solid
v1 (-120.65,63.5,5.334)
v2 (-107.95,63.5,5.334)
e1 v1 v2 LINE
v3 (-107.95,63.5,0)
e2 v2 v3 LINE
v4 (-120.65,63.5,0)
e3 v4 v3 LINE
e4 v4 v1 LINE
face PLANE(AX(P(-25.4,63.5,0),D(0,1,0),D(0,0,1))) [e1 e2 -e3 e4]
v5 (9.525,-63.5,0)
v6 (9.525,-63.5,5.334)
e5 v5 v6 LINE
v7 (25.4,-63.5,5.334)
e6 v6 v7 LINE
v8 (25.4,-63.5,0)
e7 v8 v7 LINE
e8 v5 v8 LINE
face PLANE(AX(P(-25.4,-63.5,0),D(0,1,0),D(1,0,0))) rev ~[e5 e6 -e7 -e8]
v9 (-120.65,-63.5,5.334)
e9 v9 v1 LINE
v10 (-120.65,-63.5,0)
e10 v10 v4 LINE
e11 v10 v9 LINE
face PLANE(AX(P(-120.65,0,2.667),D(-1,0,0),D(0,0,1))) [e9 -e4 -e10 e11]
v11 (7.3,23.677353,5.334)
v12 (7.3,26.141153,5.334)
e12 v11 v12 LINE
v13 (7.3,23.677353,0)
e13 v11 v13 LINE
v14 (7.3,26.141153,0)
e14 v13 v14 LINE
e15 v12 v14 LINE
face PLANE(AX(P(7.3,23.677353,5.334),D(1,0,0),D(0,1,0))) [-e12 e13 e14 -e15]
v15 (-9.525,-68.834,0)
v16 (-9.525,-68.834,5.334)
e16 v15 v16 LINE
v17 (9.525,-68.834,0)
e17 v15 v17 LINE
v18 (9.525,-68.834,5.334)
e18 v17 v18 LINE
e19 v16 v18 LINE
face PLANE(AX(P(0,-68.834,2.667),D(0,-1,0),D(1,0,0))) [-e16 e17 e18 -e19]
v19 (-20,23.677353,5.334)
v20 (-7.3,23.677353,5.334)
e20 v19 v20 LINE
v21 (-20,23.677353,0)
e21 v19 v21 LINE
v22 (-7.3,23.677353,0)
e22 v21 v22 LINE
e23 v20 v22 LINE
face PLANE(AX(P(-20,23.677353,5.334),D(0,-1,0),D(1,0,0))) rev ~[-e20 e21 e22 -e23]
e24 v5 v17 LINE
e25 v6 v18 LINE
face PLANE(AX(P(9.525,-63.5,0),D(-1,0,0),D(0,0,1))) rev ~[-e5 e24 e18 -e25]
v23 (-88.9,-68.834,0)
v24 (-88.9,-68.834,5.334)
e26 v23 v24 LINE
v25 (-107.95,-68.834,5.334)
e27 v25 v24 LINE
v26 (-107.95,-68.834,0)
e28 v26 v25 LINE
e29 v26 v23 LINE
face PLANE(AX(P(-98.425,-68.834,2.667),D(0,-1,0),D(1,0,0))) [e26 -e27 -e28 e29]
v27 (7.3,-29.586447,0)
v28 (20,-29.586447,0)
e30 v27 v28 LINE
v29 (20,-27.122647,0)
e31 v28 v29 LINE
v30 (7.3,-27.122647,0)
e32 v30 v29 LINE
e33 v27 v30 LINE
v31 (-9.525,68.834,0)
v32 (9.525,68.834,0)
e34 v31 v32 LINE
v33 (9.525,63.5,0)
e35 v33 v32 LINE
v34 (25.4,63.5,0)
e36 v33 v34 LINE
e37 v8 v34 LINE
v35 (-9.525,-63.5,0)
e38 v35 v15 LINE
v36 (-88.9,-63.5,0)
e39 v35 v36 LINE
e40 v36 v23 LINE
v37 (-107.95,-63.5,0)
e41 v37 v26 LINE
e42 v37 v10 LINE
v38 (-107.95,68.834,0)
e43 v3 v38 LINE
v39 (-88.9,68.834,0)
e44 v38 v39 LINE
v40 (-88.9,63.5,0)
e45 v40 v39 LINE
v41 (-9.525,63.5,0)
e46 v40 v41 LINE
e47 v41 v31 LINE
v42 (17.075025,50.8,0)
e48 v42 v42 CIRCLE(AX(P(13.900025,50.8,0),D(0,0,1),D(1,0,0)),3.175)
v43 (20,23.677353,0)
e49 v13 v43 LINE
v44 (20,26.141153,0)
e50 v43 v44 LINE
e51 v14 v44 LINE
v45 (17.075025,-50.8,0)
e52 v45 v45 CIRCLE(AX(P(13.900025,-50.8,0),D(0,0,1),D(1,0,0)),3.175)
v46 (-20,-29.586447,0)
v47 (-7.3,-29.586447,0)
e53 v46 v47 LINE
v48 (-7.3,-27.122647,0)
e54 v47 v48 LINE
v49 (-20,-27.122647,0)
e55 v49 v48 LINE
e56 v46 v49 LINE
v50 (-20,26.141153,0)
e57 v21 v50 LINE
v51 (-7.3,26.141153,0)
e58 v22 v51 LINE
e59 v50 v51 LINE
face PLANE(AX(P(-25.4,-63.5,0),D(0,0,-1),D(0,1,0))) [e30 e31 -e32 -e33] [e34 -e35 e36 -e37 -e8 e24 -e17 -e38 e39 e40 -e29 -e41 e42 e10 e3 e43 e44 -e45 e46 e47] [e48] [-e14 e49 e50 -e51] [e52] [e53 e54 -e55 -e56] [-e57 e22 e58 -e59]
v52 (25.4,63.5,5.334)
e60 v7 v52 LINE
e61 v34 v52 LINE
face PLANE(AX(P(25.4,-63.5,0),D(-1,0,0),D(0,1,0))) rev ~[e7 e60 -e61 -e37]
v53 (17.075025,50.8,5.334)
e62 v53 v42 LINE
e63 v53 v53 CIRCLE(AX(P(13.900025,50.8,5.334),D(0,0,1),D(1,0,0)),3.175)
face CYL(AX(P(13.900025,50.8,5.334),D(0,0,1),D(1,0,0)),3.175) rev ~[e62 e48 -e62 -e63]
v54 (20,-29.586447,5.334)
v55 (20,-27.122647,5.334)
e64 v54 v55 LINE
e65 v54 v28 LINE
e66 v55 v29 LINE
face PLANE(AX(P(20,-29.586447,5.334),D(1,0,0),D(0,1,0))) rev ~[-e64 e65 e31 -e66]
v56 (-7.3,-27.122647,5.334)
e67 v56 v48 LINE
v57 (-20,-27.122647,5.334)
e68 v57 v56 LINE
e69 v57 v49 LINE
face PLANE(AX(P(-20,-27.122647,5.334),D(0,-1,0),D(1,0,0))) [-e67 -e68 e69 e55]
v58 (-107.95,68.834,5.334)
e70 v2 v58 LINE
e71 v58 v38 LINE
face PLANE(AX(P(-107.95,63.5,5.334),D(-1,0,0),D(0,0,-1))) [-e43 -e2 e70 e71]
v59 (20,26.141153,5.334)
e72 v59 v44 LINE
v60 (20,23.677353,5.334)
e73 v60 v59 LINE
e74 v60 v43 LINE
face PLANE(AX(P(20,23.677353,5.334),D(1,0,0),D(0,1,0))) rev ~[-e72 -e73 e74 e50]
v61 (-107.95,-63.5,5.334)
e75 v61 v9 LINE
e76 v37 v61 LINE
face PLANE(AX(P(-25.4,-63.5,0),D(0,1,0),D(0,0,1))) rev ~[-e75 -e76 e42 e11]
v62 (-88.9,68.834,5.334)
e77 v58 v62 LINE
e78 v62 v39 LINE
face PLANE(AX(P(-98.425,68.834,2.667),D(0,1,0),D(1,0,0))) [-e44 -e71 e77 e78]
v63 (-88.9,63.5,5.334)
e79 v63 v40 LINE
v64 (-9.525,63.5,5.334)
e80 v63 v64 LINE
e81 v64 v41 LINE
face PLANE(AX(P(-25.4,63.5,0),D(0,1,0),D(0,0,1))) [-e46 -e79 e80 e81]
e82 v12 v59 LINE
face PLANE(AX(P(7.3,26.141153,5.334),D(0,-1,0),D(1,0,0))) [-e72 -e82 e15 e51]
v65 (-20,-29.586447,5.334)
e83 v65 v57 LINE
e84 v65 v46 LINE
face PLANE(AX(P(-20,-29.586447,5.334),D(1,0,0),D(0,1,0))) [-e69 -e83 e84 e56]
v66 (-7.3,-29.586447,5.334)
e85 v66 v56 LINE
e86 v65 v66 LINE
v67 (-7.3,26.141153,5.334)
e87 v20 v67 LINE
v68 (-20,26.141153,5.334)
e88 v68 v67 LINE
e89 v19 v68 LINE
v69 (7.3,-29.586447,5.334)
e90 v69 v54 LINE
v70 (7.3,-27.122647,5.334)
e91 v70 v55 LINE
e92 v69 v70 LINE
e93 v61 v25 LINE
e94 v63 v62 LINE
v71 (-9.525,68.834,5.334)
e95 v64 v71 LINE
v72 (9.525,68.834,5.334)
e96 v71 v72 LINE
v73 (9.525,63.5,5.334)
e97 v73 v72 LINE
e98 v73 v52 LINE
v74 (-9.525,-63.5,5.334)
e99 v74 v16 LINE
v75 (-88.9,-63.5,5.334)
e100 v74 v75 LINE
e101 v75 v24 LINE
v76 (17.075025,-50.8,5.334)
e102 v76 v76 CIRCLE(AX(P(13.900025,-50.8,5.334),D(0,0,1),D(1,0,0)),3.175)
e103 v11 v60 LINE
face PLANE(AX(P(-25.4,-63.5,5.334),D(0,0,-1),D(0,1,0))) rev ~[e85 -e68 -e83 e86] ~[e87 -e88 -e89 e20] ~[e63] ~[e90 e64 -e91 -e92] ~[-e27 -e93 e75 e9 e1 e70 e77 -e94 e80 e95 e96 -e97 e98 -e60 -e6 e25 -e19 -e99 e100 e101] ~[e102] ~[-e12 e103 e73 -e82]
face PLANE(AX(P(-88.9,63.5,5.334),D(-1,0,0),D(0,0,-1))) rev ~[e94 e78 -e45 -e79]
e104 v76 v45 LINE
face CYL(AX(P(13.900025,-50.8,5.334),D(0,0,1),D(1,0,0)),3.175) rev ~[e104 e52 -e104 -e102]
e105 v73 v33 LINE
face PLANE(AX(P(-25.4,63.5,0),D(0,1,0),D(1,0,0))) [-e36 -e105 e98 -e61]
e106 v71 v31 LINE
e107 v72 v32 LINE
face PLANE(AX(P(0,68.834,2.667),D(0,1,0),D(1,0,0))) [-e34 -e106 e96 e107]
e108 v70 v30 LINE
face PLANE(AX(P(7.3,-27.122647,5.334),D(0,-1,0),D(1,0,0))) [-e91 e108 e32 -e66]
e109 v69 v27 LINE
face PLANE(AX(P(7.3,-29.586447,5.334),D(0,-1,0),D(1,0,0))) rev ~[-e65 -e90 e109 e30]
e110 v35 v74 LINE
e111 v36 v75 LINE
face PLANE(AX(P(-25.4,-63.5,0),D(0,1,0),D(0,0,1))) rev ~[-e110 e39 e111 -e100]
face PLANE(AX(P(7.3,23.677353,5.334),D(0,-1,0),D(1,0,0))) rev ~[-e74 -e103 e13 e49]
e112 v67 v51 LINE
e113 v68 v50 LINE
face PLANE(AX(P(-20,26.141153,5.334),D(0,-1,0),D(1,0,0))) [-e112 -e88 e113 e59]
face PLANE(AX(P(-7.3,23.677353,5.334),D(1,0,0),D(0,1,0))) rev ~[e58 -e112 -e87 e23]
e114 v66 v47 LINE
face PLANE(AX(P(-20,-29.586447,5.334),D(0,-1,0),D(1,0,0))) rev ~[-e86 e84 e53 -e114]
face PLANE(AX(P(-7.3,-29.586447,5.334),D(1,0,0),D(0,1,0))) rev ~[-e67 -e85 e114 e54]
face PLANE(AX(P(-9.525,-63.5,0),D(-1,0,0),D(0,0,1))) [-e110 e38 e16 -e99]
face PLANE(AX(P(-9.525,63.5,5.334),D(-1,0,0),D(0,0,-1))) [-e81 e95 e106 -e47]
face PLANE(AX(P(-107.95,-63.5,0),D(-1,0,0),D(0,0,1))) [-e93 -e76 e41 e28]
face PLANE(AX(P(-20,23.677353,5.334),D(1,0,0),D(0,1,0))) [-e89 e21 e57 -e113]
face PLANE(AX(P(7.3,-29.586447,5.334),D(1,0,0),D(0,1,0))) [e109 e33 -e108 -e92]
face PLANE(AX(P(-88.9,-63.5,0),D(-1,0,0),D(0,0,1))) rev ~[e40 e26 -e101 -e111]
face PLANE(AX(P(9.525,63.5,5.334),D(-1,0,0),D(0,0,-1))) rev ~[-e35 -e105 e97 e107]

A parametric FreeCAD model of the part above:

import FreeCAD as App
import Part
import Sketcher
Q = App.Units.Quantity

doc = App.newDocument("Part")
body = doc.addObject("PartDesign::Body", "Body")

# Sketch on XY plane
sketch1 = body.newObject("Sketcher::SketchObject", "Sketch")
sketch1.AttachmentSupport = (doc.getObject("XY_Plane"), [""])
sketch1.MapMode = "FlatFace"
sketch1.addGeometry(Part.LineSegment(App.Vector(-25.4, 63.5, 0), App.Vector(-25.4, -63.5, 0)), False)
sketch1.addGeometry(Part.LineSegment(App.Vector(-25.4, -63.5, 0), App.Vector(25.4, -63.5, 0)), False)
sketch1.addGeometry(Part.LineSegment(App.Vector(25.4, -63.5, 0), App.Vector(25.4, 63.5, 0)), False)
sketch1.addGeometry(Part.LineSegment(App.Vector(25.4, 63.5, 0), App.Vector(-25.4, 63.5, 0)), False)
sketch1.addConstraint(Sketcher.Constraint("Coincident", 0, 2, 1, 1))
sketch1.addConstraint(Sketcher.Constraint("Coincident", 1, 2, 2, 1))
sketch1.addConstraint(Sketcher.Constraint("Coincident", 2, 2, 3, 1))
sketch1.addConstraint(Sketcher.Constraint("Coincident", 3, 2, 0, 1))
sketch1.addConstraint(Sketcher.Constraint("Vertical", 0))
sketch1.addConstraint(Sketcher.Constraint("Horizontal", 1))
sketch1.addConstraint(Sketcher.Constraint("Vertical", 2))
sketch1.addConstraint(Sketcher.Constraint("Horizontal", 3))
sketch1.addConstraint(Sketcher.Constraint("Symmetric", 0, 2, 2, 2, -1, 1))
sketch1.addConstraint(Sketcher.Constraint("DistanceX", 1, 1, 1, 2, Q("2 in")))
sketch1.addConstraint(Sketcher.Constraint("DistanceY", 0, 2, 0, 1, Q("5 in")))
pad1 = body.newObject("PartDesign::Pad", "Pad")
pad1.Profile = sketch1
pad1.Length = Q("0.21 in")

# Sketch on XZ plane
sketch2 = body.newObject("Sketcher::SketchObject", "Sketch001")
sketch2.AttachmentSupport = (doc.getObject("XZ_Plane"), [""])
sketch2.MapMode = "FlatFace"
sketch2.AttachmentOffset = App.Placement(App.Vector(0, 0, -2.5 * 25.4), App.Rotation())
sketch2.addGeometry(Part.LineSegment(App.Vector(-9.525, 0, 0), App.Vector(-9.525, 5.334, 0)), False)
sketch2.addGeometry(Part.LineSegment(App.Vector(-9.525, 5.334, 0), App.Vector(9.525, 5.334, 0)), False)
sketch2.addGeometry(Part.LineSegment(App.Vector(9.525, 5.334, 0), App.Vector(9.525, 0, 0)), False)
sketch2.addGeometry(Part.LineSegment(App.Vector(9.525, 0, 0), App.Vector(-9.525, 0, 0)), False)
sketch2.addConstraint(Sketcher.Constraint("Coincident", 0, 2, 1, 1))
sketch2.addConstraint(Sketcher.Constraint("Coincident", 1, 2, 2, 1))
sketch2.addConstraint(Sketcher.Constraint("Coincident", 2, 2, 3, 1))
sketch2.addConstraint(Sketcher.Constraint("Coincident", 3, 2, 0, 1))
sketch2.addConstraint(Sketcher.Constraint("Vertical", 0))
sketch2.addConstraint(Sketcher.Constraint("Horizontal", 1))
sketch2.addConstraint(Sketcher.Constraint("Vertical", 2))
sketch2.addConstraint(Sketcher.Constraint("Horizontal", 3))
sketch2.addConstraint(Sketcher.Constraint("Symmetric", 2, 2, 3, 2, -1, 1))
sketch2.addConstraint(Sketcher.Constraint("DistanceX", 1, 1, 1, 2, Q("0.75 in")))
sketch2.addConstraint(Sketcher.Constraint("DistanceY", 0, 1, 0, 2, Q("0.21 in")))
pad2 = body.newObject("PartDesign::Pad", "Pad001")
pad2.Profile = sketch2
pad2.Length = Q("0.21 in")
pad2.Reversed = True

# Sketch on XZ plane
sketch3 = body.newObject("Sketcher::SketchObject", "Sketch002")
sketch3.AttachmentSupport = (doc.getObject("XZ_Plane"), [""])
sketch3.MapMode = "FlatFace"
sketch3.AttachmentOffset = App.Placement(App.Vector(0, 0, 2.5 * 25.4), App.Rotation())
sketch3.addGeometry(Part.LineSegment(App.Vector(-9.525, 5.334, 0), App.Vector(-9.525, 0, 0)), False)
sketch3.addGeometry(Part.LineSegment(App.Vector(-9.525, 0, 0), App.Vector(9.525, 0, 0)), False)
sketch3.addGeometry(Part.LineSegment(App.Vector(9.525, 0, 0), App.Vector(9.525, 5.334, 0)), False)
sketch3.addGeometry(Part.LineSegment(App.Vector(9.525, 5.334, 0), App.Vector(-9.525, 5.334, 0)), False)
sketch3.addConstraint(Sketcher.Constraint("Coincident", 0, 2, 1, 1))
sketch3.addConstraint(Sketcher.Constraint("Coincident", 1, 2, 2, 1))
sketch3.addConstraint(Sketcher.Constraint("Coincident", 2, 2, 3, 1))
sketch3.addConstraint(Sketcher.Constraint("Coincident", 3, 2, 0, 1))
sketch3.addConstraint(Sketcher.Constraint("Vertical", 0))
sketch3.addConstraint(Sketcher.Constraint("Horizontal", 1))
sketch3.addConstraint(Sketcher.Constraint("Vertical", 2))
sketch3.addConstraint(Sketcher.Constraint("Horizontal", 3))
sketch3.addConstraint(Sketcher.Constraint("Symmetric", 0, 2, 1, 2, -1, 1))
sketch3.addConstraint(Sketcher.Constraint("DistanceX", 1, 1, 1, 2, Q("0.75 in")))
sketch3.addConstraint(Sketcher.Constraint("DistanceY", 0, 2, 0, 1, Q("0.21 in")))
pad3 = body.newObject("PartDesign::Pad", "Pad002")
pad3.Profile = sketch3
pad3.Length = Q("0.21 in")

# Sketch on XY plane
sketch4 = body.newObject("Sketcher::SketchObject", "Sketch003")
sketch4.AttachmentSupport = (doc.getObject("XY_Plane"), [""])
sketch4.MapMode = "FlatFace"
sketch4.AttachmentOffset = App.Placement(App.Vector(0, 0, 0.21 * 25.4), App.Rotation())
sketch4.addGeometry(Part.LineSegment(App.Vector(-20, 26.141153, 0), App.Vector(-20, 23.677353, 0)), False)
sketch4.addGeometry(Part.LineSegment(App.Vector(-20, 23.677353, 0), App.Vector(-7.3, 23.677353, 0)), False)
sketch4.addGeometry(Part.LineSegment(App.Vector(-7.3, 23.677353, 0), App.Vector(-7.3, 26.141153, 0)), False)
sketch4.addGeometry(Part.LineSegment(App.Vector(-7.3, 26.141153, 0), App.Vector(-20, 26.141153, 0)), False)
sketch4.addGeometry(Part.LineSegment(App.Vector(7.3, -27.122647, 0), App.Vector(7.3, -29.586447, 0)), False)
sketch4.addGeometry(Part.LineSegment(App.Vector(7.3, -29.586447, 0), App.Vector(20, -29.586447, 0)), False)
sketch4.addGeometry(Part.LineSegment(App.Vector(20, -29.586447, 0), App.Vector(20, -27.122647, 0)), False)
sketch4.addGeometry(Part.LineSegment(App.Vector(20, -27.122647, 0), App.Vector(7.3, -27.122647, 0)), False)
sketch4.addGeometry(Part.LineSegment(App.Vector(-20, -27.122647, 0), App.Vector(-20, -29.586447, 0)), False)
sketch4.addGeometry(Part.LineSegment(App.Vector(-20, -29.586447, 0), App.Vector(-7.3, -29.586447, 0)), False)
sketch4.addGeometry(Part.LineSegment(App.Vector(-7.3, -29.586447, 0), App.Vector(-7.3, -27.122647, 0)), False)
sketch4.addGeometry(Part.LineSegment(App.Vector(-7.3, -27.122647, 0), App.Vector(-20, -27.122647, 0)), False)
sketch4.addGeometry(Part.LineSegment(App.Vector(7.3, 26.141153, 0), App.Vector(7.3, 23.677353, 0)), False)
sketch4.addGeometry(Part.LineSegment(App.Vector(7.3, 23.677353, 0), App.Vector(20, 23.677353, 0)), False)
sketch4.addGeometry(Part.LineSegment(App.Vector(20, 23.677353, 0), App.Vector(20, 26.141153, 0)), False)
sketch4.addGeometry(Part.LineSegment(App.Vector(20, 26.141153, 0), App.Vector(7.3, 26.141153, 0)), False)
sketch4.addConstraint(Sketcher.Constraint("Coincident", 0, 2, 1, 1))
sketch4.addConstraint(Sketcher.Constraint("Coincident", 1, 2, 2, 1))
sketch4.addConstraint(Sketcher.Constraint("Coincident", 2, 2, 3, 1))
sketch4.addConstraint(Sketcher.Constraint("Coincident", 3, 2, 0, 1))
sketch4.addConstraint(Sketcher.Constraint("Coincident", 4, 2, 5, 1))
sketch4.addConstraint(Sketcher.Constraint("Coincident", 5, 2, 6, 1))
sketch4.addConstraint(Sketcher.Constraint("Coincident", 6, 2, 7, 1))
sketch4.addConstraint(Sketcher.Constraint("Coincident", 7, 2, 4, 1))
sketch4.addConstraint(Sketcher.Constraint("Coincident", 8, 2, 9, 1))
sketch4.addConstraint(Sketcher.Constraint("Coincident", 9, 2, 10, 1))
sketch4.addConstraint(Sketcher.Constraint("Coincident", 10, 2, 11, 1))
sketch4.addConstraint(Sketcher.Constraint("Coincident", 11, 2, 8, 1))
sketch4.addConstraint(Sketcher.Constraint("Coincident", 12, 2, 13, 1))
sketch4.addConstraint(Sketcher.Constraint("Coincident", 13, 2, 14, 1))
sketch4.addConstraint(Sketcher.Constraint("Coincident", 14, 2, 15, 1))
sketch4.addConstraint(Sketcher.Constraint("Coincident", 15, 2, 12, 1))
sketch4.addConstraint(Sketcher.Constraint("Vertical", 0))
sketch4.addConstraint(Sketcher.Constraint("Horizontal", 1))
sketch4.addConstraint(Sketcher.Constraint("Vertical", 2))
sketch4.addConstraint(Sketcher.Constraint("Horizontal", 3))
sketch4.addConstraint(Sketcher.Constraint("Vertical", 4))
sketch4.addConstraint(Sketcher.Constraint("Horizontal", 5))
sketch4.addConstraint(Sketcher.Constraint("Vertical", 6))
sketch4.addConstraint(Sketcher.Constraint("Horizontal", 7))
sketch4.addConstraint(Sketcher.Constraint("Vertical", 8))
sketch4.addConstraint(Sketcher.Constraint("Horizontal", 9))
sketch4.addConstraint(Sketcher.Constraint("Vertical", 10))
sketch4.addConstraint(Sketcher.Constraint("Horizontal", 11))
sketch4.addConstraint(Sketcher.Constraint("Vertical", 12))
sketch4.addConstraint(Sketcher.Constraint("Horizontal", 13))
sketch4.addConstraint(Sketcher.Constraint("Vertical", 14))
sketch4.addConstraint(Sketcher.Constraint("Horizontal", 15))
sketch4.addConstraint(Sketcher.Constraint("Symmetric", 5, 2, 8, 2, -2))
sketch4.addConstraint(Sketcher.Constraint("Symmetric", 7, 2, 10, 2, -2))
sketch4.addConstraint(Sketcher.Constraint("Symmetric", 1, 2, 12, 2, -2))
sketch4.addConstraint(Sketcher.Constraint("Symmetric", 3, 2, 14, 2, -2))
sketch4.addConstraint(Sketcher.Constraint("Vertical", 3, 2, 8, 2))
sketch4.addConstraint(Sketcher.Constraint("Vertical", 2, 2, 9, 2))
sketch4.addConstraint(Sketcher.Constraint("Equal", 2, 4))
sketch4.addConstraint(Sketcher.Constraint("DistanceX", 1, 1, 1, 2, Q("0.5 in")))
sketch4.addConstraint(Sketcher.Constraint("DistanceY", 6, 2, 1, 2, Q("2 in")))
sketch4.addConstraint(Sketcher.Constraint("DistanceY", 0, 2, 0, 1, Q("0.097 in")))
sketch4.addConstraint(Sketcher.Constraint("DistanceX", 0, 2, -1, 1, 20.0))
sketch4.addConstraint(Sketcher.Constraint("DistanceY", -1, 1, 0, 2, 23.677353))
pocket1 = body.newObject("PartDesign::Pocket", "Pocket")
pocket1.Profile = sketch4
pocket1.Type = "ThroughAll"

# Sketch on XY plane
sketch5 = body.newObject("Sketcher::SketchObject", "Sketch004")
sketch5.AttachmentSupport = (doc.getObject("XY_Plane"), [""])
sketch5.MapMode = "FlatFace"
sketch5.AttachmentOffset = App.Placement(App.Vector(0, 0, 0.21 * 25.4), App.Rotation())
sketch5.addGeometry(Part.Circle(App.Vector(13.900025, 50.8, 0), App.Vector(0, 0, 1), 3.175), False)
sketch5.addGeometry(Part.Circle(App.Vector(13.900025, -50.8, 0), App.Vector(0, 0, 1), 3.175), False)
sketch5.addConstraint(Sketcher.Constraint("Equal", 0, 1))
sketch5.addConstraint(Sketcher.Constraint("Symmetric", 0, 3, 1, 3, -1))
sketch5.addConstraint(Sketcher.Constraint("Diameter", 0, Q("0.25 in")))
sketch5.addConstraint(Sketcher.Constraint("DistanceY", -1, 1, 0, 3, Q("2 in")))
sketch5.addConstraint(Sketcher.Constraint("DistanceX", -1, 1, 0, 3, 13.900025))
pocket2 = body.newObject("PartDesign::Pocket", "Pocket001")
pocket2.Profile = sketch5
pocket2.Type = "ThroughAll"

# Sketch on YZ plane
sketch6 = body.newObject("Sketcher::SketchObject", "Sketch005")
sketch6.AttachmentSupport = (doc.getObject("YZ_Plane"), [""])
sketch6.MapMode = "FlatFace"
sketch6.AttachmentOffset = App.Placement(App.Vector(0, 0, -1 * 25.4), App.Rotation())
sketch6.addGeometry(Part.LineSegment(App.Vector(63.5, 0, 0), App.Vector(-63.5, 0, 0)), False)
sketch6.addGeometry(Part.LineSegment(App.Vector(-63.5, 0, 0), App.Vector(-63.5, 5.334, 0)), False)
sketch6.addGeometry(Part.LineSegment(App.Vector(-63.5, 5.334, 0), App.Vector(63.5, 5.334, 0)), False)
sketch6.addGeometry(Part.LineSegment(App.Vector(63.5, 5.334, 0), App.Vector(63.5, 0, 0)), False)
sketch6.addConstraint(Sketcher.Constraint("Coincident", 0, 2, 1, 1))
sketch6.addConstraint(Sketcher.Constraint("Coincident", 1, 2, 2, 1))
sketch6.addConstraint(Sketcher.Constraint("Coincident", 2, 2, 3, 1))
sketch6.addConstraint(Sketcher.Constraint("Coincident", 3, 2, 0, 1))
sketch6.addConstraint(Sketcher.Constraint("Horizontal", 0))
sketch6.addConstraint(Sketcher.Constraint("Vertical", 1))
sketch6.addConstraint(Sketcher.Constraint("Horizontal", 2))
sketch6.addConstraint(Sketcher.Constraint("Vertical", 3))
sketch6.addConstraint(Sketcher.Constraint("Symmetric", 0, 2, 3, 2, -1, 1))
sketch6.addConstraint(Sketcher.Constraint("DistanceX", 0, 2, 0, 1, Q("5 in")))
sketch6.addConstraint(Sketcher.Constraint("DistanceY", 1, 1, 1, 2, Q("0.21 in")))
pad4 = body.newObject("PartDesign::Pad", "Pad003")
pad4.Profile = sketch6
pad4.Length = Q("3.75 in")
pad4.Reversed = True

# Sketch on XZ plane
sketch7 = body.newObject("Sketcher::SketchObject", "Sketch006")
sketch7.AttachmentSupport = (doc.getObject("XZ_Plane"), [""])
sketch7.MapMode = "FlatFace"
sketch7.AttachmentOffset = App.Placement(App.Vector(0, 0, -2.5 * 25.4), App.Rotation())
sketch7.addGeometry(Part.LineSegment(App.Vector(-107.95, 0, 0), App.Vector(-107.95, 5.334, 0)), False)
sketch7.addGeometry(Part.LineSegment(App.Vector(-107.95, 5.334, 0), App.Vector(-88.9, 5.334, 0)), False)
sketch7.addGeometry(Part.LineSegment(App.Vector(-88.9, 5.334, 0), App.Vector(-88.9, 0, 0)), False)
sketch7.addGeometry(Part.LineSegment(App.Vector(-88.9, 0, 0), App.Vector(-107.95, 0, 0)), False)
sketch7.addConstraint(Sketcher.Constraint("Coincident", 0, 2, 1, 1))
sketch7.addConstraint(Sketcher.Constraint("Coincident", 1, 2, 2, 1))
sketch7.addConstraint(Sketcher.Constraint("Coincident", 2, 2, 3, 1))
sketch7.addConstraint(Sketcher.Constraint("Coincident", 3, 2, 0, 1))
sketch7.addConstraint(Sketcher.Constraint("Vertical", 0))
sketch7.addConstraint(Sketcher.Constraint("Horizontal", 1))
sketch7.addConstraint(Sketcher.Constraint("Vertical", 2))
sketch7.addConstraint(Sketcher.Constraint("Horizontal", 3))
sketch7.addConstraint(Sketcher.Constraint("PointOnObject", 2, 2, -1))
sketch7.addConstraint(Sketcher.Constraint("DistanceX", 1, 1, 1, 2, Q("0.75 in")))
sketch7.addConstraint(Sketcher.Constraint("DistanceY", 0, 1, 0, 2, Q("0.21 in")))
sketch7.addConstraint(Sketcher.Constraint("DistanceX", 1, 2, -1, 1, Q("3.5 in")))
pad5 = body.newObject("PartDesign::Pad", "Pad004")
pad5.Profile = sketch7
pad5.Length = Q("0.21 in")
pad5.Reversed = True

# Sketch on XZ plane
sketch8 = body.newObject("Sketcher::SketchObject", "Sketch007")
sketch8.AttachmentSupport = (doc.getObject("XZ_Plane"), [""])
sketch8.MapMode = "FlatFace"
sketch8.AttachmentOffset = App.Placement(App.Vector(0, 0, 2.5 * 25.4), App.Rotation())
sketch8.addGeometry(Part.LineSegment(App.Vector(-107.95, 5.334, 0), App.Vector(-107.95, 0, 0)), False)
sketch8.addGeometry(Part.LineSegment(App.Vector(-107.95, 0, 0), App.Vector(-88.9, 0, 0)), False)
sketch8.addGeometry(Part.LineSegment(App.Vector(-88.9, 0, 0), App.Vector(-88.9, 5.334, 0)), False)
sketch8.addGeometry(Part.LineSegment(App.Vector(-88.9, 5.334, 0), App.Vector(-107.95, 5.334, 0)), False)
sketch8.addConstraint(Sketcher.Constraint("Coincident", 0, 2, 1, 1))
sketch8.addConstraint(Sketcher.Constraint("Coincident", 1, 2, 2, 1))
sketch8.addConstraint(Sketcher.Constraint("Coincident", 2, 2, 3, 1))
sketch8.addConstraint(Sketcher.Constraint("Coincident", 3, 2, 0, 1))
sketch8.addConstraint(Sketcher.Constraint("Vertical", 0))
sketch8.addConstraint(Sketcher.Constraint("Horizontal", 1))
sketch8.addConstraint(Sketcher.Constraint("Vertical", 2))
sketch8.addConstraint(Sketcher.Constraint("Horizontal", 3))
sketch8.addConstraint(Sketcher.Constraint("PointOnObject", 0, 2, -1))
sketch8.addConstraint(Sketcher.Constraint("DistanceX", 1, 1, 1, 2, Q("0.75 in")))
sketch8.addConstraint(Sketcher.Constraint("DistanceY", 0, 2, 0, 1, Q("0.21 in")))
sketch8.addConstraint(Sketcher.Constraint("DistanceX", 1, 2, -1, 1, Q("3.5 in")))
pad6 = body.newObject("PartDesign::Pad", "Pad005")
pad6.Profile = sketch8
pad6.Length = Q("0.21 in")

doc.recompute()
